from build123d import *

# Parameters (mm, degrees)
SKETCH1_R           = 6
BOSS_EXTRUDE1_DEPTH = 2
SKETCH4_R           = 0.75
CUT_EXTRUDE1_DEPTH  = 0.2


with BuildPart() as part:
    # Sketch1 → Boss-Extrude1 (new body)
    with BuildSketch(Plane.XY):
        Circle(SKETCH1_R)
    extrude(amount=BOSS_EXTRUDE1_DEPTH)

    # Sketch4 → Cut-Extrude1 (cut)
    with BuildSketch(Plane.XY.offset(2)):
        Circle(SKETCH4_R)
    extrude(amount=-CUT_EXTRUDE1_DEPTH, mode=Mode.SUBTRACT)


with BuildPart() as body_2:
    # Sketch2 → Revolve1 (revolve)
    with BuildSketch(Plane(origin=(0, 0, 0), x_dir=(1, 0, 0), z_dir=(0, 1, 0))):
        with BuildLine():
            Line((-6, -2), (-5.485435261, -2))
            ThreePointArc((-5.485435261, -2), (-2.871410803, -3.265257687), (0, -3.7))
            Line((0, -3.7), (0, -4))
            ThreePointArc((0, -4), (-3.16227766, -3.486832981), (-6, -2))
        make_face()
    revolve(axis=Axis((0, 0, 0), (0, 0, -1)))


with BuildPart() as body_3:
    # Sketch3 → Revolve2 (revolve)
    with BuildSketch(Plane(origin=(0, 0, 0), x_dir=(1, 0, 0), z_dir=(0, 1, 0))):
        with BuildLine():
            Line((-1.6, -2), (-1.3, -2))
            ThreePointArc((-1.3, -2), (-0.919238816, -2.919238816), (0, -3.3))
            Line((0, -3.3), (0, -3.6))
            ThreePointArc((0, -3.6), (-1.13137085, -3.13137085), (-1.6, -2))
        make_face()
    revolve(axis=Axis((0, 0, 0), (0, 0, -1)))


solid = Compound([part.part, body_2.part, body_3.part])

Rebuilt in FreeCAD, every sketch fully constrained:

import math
import FreeCAD as App
import Part
import Sketcher

V = App.Vector

doc = App.newDocument("Part")
params = doc.addObject("Spreadsheet::Sheet", "Params")
for row, (alias, value) in enumerate([
    ("sketch1_diameter", "12 mm"),
    ("pad1_length", "2 mm"),
    ("sketch2_diameter", "1.5 mm"),
    ("pocket1_length", "0.2 mm"),
    ("sketch3_radius", "10 mm"),
    ("sketch3_radius2", "9.7 mm"),
    ("revolution_angle", "360 deg"),
    ("sketch4_radius", "1.6 mm"),
    ("sketch4_radius2", "1.3 mm"),
    ("revolution2_angle", "360 deg"),
], start=1):
    params.set(f"A{row}", alias)
    params.set(f"B{row}", "=" + value)
    params.setAlias(f"B{row}", alias)

body = doc.addObject("PartDesign::Body", "Body")

sketch1 = body.newObject("Sketcher::SketchObject", "Sketch")
sketch1.AttachmentSupport = (doc.getObject("XY_Plane"), [""])
sketch1.MapMode = "FlatFace"
sketch1.addGeometry(Part.Circle(V(0, 0, 0), V(0, 0, 1), 6), False)
sketch1.addConstraint([
    Sketcher.Constraint("Coincident", 0, 3, -1, 1),
    Sketcher.Constraint("Diameter", 0, 12.0),
])
sketch1.setExpression("Constraints[1]", "Params.sketch1_diameter")
pad1 = body.newObject("PartDesign::Pad", "Pad")
pad1.Profile = sketch1
pad1.setExpression("Length", "Params.pad1_length")

sketch2 = body.newObject("Sketcher::SketchObject", "Sketch001")
sketch2.AttachmentSupport = (doc.getObject("XY_Plane"), [""])
sketch2.MapMode = "FlatFace"
sketch2.AttachmentOffset = App.Placement(V(0, 0, 2), App.Rotation())
sketch2.addGeometry(Part.Circle(V(0, 0, 0), V(0, 0, 1), 0.8), False)
sketch2.addConstraint([
    Sketcher.Constraint("Coincident", 0, 3, -1, 1),
    Sketcher.Constraint("Diameter", 0, 1.5),
])
sketch2.setExpression("Constraints[1]", "Params.sketch2_diameter")
pocket1 = body.newObject("PartDesign::Pocket", "Pocket")
pocket1.Profile = sketch2
pocket1.setExpression("Length", "Params.pocket1_length")
body2 = doc.addObject("PartDesign::Body", "Body001")

sketch3 = body2.newObject("Sketcher::SketchObject", "Sketch002")
sketch3.AttachmentSupport = (doc.getObject("XZ_Plane001"), [""])
sketch3.MapMode = "FlatFace"
sketch3.addGeometry([
    Part.LineSegment(V(-5.49, 2, 0), V(-6, 2, 0)),
    Part.ArcOfCircle(Part.Circle(V(0, -6, 0), V(0, 0, 1), 10), math.radians(90), math.radians(127)),
    Part.LineSegment(V(0, 4, 0), V(0, 3.7, 0)),
    Part.ArcOfCircle(Part.Circle(V(0, -6, 0), V(0, 0, 1), 9.7), math.radians(90), math.radians(124)),
], False)
sketch3.addConstraint([
    Sketcher.Constraint("Coincident", 0, 2, 1, 2),
    Sketcher.Constraint("Coincident", 1, 1, 2, 1),
    Sketcher.Constraint("Coincident", 2, 2, 3, 1),
    Sketcher.Constraint("Coincident", 3, 2, 0, 1),
    Sketcher.Constraint("Horizontal", 0),
    Sketcher.Constraint("Vertical", 2),
    Sketcher.Constraint("Coincident", 3, 3, 1, 3),
    Sketcher.Constraint("PointOnObject", 1, 3, -2),
    Sketcher.Constraint("PointOnObject", 1, 1, -2),
    Sketcher.Constraint("Radius", 1, 10.0),
    Sketcher.Constraint("Radius", 3, 9.7),
    Sketcher.Constraint("DistanceY", 1, 3, -1, 1, 6.0),
    Sketcher.Constraint("DistanceX", 0, 2, -1, 1, 6.0),
])
sketch3.setExpression("Constraints[9]", "Params.sketch3_radius")
sketch3.setExpression("Constraints[10]", "Params.sketch3_radius2")
revolution = body2.newObject("PartDesign::Revolution", "Revolution")
revolution.Profile = sketch3
revolution.ReferenceAxis = (sketch3, ["V_Axis"])
revolution.setExpression("Angle", "Params.revolution_angle")
body3 = doc.addObject("PartDesign::Body", "Body002")

sketch4 = body3.newObject("Sketcher::SketchObject", "Sketch003")
sketch4.AttachmentSupport = (doc.getObject("XZ_Plane002"), [""])
sketch4.MapMode = "FlatFace"
sketch4.addGeometry([
    Part.LineSegment(V(-1.3, 2, 0), V(-1.6, 2, 0)),
    Part.ArcOfCircle(Part.Circle(V(0, 2, 0), V(0, 0, 1), 1.6), math.radians(90), math.radians(180)),
    Part.LineSegment(V(0, 3.6, 0), V(0, 3.3, 0)),
    Part.ArcOfCircle(Part.Circle(V(0, 2, 0), V(0, 0, 1), 1.3), math.radians(90), math.radians(180)),
], False)
sketch4.addConstraint([
    Sketcher.Constraint("Coincident", 0, 2, 1, 2),
    Sketcher.Constraint("Coincident", 1, 1, 2, 1),
    Sketcher.Constraint("Coincident", 2, 2, 3, 1),
    Sketcher.Constraint("Coincident", 3, 2, 0, 1),
    Sketcher.Constraint("Horizontal", 0),
    Sketcher.Constraint("Vertical", 2),
    Sketcher.Constraint("Coincident", 3, 3, 1, 3),
    Sketcher.Constraint("PointOnObject", 1, 3, -2),
    Sketcher.Constraint("PointOnObject", 1, 1, -2),
    Sketcher.Constraint("Horizontal", 3, 3, 0, 2),
    Sketcher.Constraint("Radius", 1, 1.6),
    Sketcher.Constraint("Radius", 3, 1.3),
    Sketcher.Constraint("DistanceY", -1, 1, 1, 3, 2.0),
])
sketch4.setExpression("Constraints[10]", "Params.sketch4_radius")
sketch4.setExpression("Constraints[11]", "Params.sketch4_radius2")
revolution2 = body3.newObject("PartDesign::Revolution", "Revolution001")
revolution2.Profile = sketch4
revolution2.ReferenceAxis = (sketch4, ["V_Axis"])
revolution2.setExpression("Angle", "Params.revolution2_angle")

doc.recompute()
